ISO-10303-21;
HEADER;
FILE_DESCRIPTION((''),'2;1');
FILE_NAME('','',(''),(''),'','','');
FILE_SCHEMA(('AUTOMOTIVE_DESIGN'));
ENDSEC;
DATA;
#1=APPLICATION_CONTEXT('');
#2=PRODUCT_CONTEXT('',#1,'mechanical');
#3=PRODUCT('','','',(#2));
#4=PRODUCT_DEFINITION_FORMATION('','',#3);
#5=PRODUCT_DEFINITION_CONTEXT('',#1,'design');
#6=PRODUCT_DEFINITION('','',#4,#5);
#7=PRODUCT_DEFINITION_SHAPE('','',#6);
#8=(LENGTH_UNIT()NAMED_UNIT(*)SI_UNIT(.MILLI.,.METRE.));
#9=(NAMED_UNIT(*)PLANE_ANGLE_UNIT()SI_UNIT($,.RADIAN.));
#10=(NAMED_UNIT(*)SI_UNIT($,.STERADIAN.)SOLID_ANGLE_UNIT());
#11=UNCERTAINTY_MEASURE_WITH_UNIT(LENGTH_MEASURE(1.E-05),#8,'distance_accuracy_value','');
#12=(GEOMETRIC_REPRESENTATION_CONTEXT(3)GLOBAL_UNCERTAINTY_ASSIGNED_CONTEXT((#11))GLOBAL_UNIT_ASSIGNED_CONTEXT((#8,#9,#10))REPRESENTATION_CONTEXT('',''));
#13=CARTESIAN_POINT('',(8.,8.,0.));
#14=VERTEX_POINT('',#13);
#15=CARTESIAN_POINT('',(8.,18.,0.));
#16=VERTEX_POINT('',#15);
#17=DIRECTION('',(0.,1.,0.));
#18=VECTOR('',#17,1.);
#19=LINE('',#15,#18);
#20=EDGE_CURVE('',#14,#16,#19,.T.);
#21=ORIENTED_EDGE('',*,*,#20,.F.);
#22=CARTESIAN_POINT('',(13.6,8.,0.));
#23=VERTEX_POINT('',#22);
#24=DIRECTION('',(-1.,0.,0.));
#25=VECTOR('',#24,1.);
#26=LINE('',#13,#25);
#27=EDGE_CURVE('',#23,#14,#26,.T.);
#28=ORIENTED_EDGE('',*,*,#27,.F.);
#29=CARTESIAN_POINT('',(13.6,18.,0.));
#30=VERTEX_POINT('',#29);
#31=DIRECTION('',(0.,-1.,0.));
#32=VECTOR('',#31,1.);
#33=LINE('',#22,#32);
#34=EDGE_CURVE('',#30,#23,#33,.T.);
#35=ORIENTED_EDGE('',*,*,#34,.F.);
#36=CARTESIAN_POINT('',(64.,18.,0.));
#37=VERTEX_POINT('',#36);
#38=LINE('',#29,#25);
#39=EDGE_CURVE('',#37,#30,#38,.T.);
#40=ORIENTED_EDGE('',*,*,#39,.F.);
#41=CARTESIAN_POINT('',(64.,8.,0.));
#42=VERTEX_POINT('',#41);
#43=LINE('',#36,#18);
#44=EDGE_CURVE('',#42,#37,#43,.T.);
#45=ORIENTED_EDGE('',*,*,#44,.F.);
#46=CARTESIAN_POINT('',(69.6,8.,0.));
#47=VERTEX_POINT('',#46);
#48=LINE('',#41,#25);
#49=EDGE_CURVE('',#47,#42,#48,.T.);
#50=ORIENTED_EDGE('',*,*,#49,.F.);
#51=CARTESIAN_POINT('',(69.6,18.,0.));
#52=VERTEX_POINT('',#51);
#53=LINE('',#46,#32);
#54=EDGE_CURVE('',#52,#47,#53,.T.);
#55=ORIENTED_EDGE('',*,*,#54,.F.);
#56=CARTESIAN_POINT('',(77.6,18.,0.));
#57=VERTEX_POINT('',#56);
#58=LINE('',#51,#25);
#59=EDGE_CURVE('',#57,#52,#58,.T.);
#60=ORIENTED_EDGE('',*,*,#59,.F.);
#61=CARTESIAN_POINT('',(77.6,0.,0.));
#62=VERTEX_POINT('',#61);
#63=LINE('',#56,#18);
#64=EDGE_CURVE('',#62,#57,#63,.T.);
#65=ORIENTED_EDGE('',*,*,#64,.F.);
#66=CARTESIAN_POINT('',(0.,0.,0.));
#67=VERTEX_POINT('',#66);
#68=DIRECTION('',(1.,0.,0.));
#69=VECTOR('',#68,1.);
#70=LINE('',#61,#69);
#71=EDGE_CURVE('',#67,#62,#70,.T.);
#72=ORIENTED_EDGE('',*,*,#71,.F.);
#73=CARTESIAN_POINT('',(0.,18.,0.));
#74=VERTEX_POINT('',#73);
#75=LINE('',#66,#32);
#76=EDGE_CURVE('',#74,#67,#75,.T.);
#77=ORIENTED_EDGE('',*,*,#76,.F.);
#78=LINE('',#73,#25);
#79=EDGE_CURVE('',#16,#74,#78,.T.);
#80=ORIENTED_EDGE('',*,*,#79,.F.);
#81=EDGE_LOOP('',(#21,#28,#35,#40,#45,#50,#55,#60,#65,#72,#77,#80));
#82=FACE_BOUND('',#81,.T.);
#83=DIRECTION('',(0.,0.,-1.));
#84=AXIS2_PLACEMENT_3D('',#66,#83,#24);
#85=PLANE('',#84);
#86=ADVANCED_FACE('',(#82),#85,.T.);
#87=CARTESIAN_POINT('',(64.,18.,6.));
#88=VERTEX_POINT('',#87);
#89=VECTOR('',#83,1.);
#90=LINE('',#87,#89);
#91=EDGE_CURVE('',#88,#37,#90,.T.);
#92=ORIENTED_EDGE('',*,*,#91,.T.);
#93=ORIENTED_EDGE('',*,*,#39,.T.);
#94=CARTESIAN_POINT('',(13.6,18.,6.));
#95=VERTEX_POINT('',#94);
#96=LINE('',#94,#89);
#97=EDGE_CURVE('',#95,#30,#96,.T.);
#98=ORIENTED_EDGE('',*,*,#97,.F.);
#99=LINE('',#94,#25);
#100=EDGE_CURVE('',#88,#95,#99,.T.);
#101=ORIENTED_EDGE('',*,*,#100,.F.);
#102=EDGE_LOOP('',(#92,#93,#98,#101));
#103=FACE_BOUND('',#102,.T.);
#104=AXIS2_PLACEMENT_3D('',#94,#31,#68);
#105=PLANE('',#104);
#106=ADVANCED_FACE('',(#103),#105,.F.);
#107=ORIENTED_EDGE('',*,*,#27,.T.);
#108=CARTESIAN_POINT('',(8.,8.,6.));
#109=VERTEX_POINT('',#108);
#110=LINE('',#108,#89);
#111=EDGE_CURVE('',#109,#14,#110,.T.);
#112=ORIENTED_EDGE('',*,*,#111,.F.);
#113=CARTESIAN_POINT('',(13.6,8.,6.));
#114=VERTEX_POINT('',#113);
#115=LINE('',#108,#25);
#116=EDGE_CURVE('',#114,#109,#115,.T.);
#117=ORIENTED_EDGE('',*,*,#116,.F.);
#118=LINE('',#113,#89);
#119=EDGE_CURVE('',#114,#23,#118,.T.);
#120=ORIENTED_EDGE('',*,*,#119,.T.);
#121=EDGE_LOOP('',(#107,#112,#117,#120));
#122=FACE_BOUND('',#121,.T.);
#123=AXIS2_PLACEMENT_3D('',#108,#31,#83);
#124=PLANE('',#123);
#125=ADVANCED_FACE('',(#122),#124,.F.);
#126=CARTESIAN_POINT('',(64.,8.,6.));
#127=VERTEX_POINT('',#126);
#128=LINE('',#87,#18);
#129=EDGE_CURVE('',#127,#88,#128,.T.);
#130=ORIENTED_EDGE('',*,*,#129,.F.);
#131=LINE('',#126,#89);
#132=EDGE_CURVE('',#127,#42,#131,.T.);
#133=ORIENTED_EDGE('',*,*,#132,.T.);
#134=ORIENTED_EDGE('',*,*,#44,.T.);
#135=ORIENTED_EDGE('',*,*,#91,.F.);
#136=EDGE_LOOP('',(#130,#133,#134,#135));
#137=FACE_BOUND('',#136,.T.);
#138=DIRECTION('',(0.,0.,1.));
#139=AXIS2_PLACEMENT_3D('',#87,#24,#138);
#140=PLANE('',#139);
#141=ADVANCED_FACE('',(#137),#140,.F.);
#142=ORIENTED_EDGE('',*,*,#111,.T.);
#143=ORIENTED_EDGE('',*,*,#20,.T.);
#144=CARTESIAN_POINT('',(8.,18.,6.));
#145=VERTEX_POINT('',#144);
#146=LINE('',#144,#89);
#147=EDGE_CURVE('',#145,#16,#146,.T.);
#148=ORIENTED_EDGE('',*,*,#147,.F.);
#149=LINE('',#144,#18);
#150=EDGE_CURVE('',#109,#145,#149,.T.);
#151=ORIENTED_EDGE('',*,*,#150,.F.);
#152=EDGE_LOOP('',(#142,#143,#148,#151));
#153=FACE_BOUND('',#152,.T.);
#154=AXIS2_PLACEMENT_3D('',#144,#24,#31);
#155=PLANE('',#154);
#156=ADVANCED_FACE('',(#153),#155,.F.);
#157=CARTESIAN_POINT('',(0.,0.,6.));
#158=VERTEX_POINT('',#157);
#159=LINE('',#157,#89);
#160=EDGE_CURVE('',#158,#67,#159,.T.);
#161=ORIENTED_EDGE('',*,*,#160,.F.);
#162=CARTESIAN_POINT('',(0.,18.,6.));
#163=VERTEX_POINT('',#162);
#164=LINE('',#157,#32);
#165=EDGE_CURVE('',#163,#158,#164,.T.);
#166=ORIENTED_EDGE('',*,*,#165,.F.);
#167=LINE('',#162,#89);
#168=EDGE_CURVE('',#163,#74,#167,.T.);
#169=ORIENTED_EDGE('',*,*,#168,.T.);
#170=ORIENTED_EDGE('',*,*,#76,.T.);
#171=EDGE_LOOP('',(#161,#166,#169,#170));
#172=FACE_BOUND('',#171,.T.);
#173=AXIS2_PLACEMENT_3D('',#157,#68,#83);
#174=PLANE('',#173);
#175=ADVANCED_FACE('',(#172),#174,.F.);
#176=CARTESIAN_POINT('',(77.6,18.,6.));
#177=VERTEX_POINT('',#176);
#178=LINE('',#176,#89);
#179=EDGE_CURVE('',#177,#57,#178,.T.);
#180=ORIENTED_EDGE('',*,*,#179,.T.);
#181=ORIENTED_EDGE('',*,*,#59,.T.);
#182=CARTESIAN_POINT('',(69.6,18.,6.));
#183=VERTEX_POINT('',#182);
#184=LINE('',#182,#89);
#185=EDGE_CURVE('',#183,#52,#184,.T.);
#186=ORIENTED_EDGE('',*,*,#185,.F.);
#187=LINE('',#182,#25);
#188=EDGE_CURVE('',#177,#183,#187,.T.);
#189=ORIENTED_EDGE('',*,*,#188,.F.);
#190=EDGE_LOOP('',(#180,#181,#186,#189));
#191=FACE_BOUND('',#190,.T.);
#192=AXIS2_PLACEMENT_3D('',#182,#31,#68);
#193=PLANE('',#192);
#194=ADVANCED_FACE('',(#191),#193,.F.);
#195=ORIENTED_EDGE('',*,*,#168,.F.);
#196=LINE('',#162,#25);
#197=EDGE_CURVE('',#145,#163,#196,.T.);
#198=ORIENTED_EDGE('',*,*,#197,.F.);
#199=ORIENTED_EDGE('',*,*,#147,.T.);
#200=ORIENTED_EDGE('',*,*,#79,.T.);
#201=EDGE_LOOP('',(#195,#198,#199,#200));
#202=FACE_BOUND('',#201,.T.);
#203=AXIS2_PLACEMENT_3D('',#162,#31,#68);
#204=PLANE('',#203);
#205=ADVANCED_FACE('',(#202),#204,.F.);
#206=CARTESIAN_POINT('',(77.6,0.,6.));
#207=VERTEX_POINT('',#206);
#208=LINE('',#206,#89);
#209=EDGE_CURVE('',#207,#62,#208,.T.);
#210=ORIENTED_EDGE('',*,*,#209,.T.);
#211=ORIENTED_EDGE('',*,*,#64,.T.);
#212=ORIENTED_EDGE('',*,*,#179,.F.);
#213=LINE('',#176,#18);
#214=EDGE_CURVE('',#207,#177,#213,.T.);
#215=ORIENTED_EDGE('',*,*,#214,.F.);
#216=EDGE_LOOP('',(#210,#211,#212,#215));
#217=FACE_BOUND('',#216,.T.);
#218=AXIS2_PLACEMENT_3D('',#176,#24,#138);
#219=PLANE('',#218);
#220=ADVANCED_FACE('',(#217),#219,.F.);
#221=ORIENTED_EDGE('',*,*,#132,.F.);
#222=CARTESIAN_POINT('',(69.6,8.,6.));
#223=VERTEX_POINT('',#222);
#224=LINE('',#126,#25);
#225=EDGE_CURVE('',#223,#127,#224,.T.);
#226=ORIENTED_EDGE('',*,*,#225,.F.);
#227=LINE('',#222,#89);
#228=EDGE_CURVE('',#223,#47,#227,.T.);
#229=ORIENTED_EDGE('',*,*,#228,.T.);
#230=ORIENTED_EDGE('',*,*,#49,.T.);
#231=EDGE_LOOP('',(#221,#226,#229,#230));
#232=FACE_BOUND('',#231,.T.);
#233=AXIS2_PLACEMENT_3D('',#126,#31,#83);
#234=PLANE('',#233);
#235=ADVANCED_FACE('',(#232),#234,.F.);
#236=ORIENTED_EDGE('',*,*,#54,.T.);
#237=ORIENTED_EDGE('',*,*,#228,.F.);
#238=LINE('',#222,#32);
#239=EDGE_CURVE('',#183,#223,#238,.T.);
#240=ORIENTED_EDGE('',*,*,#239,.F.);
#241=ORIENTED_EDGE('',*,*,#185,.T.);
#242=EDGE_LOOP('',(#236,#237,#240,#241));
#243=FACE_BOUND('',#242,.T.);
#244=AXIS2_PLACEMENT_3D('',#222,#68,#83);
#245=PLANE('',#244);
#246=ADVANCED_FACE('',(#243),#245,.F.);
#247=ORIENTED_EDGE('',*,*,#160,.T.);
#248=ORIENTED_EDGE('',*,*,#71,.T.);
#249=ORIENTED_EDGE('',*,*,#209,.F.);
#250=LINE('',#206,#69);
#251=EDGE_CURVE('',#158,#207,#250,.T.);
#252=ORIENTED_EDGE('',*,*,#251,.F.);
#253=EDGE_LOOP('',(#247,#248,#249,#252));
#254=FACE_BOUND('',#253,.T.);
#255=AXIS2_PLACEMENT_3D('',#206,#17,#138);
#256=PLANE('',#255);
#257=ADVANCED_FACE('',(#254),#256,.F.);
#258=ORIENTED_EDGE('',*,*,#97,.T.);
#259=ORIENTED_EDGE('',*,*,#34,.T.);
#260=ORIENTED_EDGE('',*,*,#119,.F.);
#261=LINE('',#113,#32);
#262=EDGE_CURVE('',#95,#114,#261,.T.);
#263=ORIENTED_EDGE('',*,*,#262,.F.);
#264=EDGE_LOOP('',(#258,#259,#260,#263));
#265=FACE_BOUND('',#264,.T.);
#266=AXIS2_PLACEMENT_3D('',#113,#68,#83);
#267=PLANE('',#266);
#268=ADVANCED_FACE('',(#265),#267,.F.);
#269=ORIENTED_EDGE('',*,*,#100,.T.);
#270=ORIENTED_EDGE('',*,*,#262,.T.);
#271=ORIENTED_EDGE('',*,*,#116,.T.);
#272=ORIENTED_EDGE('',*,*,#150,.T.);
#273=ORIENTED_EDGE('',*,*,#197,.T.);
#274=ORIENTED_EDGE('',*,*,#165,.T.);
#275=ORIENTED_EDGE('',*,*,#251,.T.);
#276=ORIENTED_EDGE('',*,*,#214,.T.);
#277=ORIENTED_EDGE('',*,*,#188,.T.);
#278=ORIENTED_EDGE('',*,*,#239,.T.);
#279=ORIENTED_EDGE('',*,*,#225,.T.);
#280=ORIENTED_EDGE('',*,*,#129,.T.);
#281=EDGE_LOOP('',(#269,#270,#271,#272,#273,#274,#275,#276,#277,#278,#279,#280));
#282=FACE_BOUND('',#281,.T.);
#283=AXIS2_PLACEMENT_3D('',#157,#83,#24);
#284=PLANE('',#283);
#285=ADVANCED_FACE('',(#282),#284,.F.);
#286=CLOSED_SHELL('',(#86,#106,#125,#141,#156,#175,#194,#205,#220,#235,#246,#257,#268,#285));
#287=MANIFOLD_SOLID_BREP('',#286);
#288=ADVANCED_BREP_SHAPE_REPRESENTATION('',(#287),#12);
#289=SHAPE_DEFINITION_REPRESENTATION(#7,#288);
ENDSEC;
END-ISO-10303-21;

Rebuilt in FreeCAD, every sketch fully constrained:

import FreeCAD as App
import Part
import Sketcher
from FreeCAD import Vector
Q = App.Units.Quantity


def add_polygon(sketch, points):
    """Adds a closed chain of lines whose ends are joined by coincident constraints."""
    first, n = sketch.GeometryCount, len(points)
    for a, b in zip(points, points[1:] + points[:1]):
        sketch.addGeometry(Part.LineSegment(App.Vector(*a, 0), App.Vector(*b, 0)), False)
    for i in range(n):
        sketch.addConstraint(Sketcher.Constraint("Coincident", first + i, 2, first + (i + 1) % n, 1))

doc = App.newDocument("Part")
body = doc.addObject("PartDesign::Body", "Body")

sketch1 = body.newObject("Sketcher::SketchObject", "Sketch")
sketch1.AttachmentSupport = (doc.getObject("XY_Plane"), [""])
sketch1.MapMode = "FlatFace"
add_polygon(sketch1, [(0, 18), (0, 0), (77.6, 0), (77.6, 18), (69.6, 18), (69.6, 8), (64, 8), (64, 18), (13.6, 18), (13.6, 8), (8, 8), (8, 18)])
sketch1.addConstraint([
    Sketcher.Constraint("Vertical", 0),
    Sketcher.Constraint("Horizontal", 1),
    Sketcher.Constraint("Vertical", 2),
    Sketcher.Constraint("Horizontal", 3),
    Sketcher.Constraint("Vertical", 4),
    Sketcher.Constraint("Horizontal", 5),
    Sketcher.Constraint("Vertical", 6),
    Sketcher.Constraint("Horizontal", 7),
    Sketcher.Constraint("Vertical", 8),
    Sketcher.Constraint("Horizontal", 9),
    Sketcher.Constraint("Vertical", 10),
    Sketcher.Constraint("Horizontal", 11),
    Sketcher.Constraint("Coincident", 0, 2, -1, 1),
    Sketcher.Constraint("Horizontal", 3, 2, 6, 2),
    Sketcher.Constraint("Horizontal", 5, 2, 8, 2),
    Sketcher.Constraint("Horizontal", 7, 2, 10, 2),
    Sketcher.Constraint("Equal", 5, 9),
    Sketcher.Constraint("Equal", 3, 11),
    Sketcher.Constraint("DistanceX", 3, 2, 3, 1, Q("8 mm")),
    Sketcher.Constraint("DistanceY", 0, 2, 0, 1, Q("18 mm")),
    Sketcher.Constraint("DistanceY", 4, 2, 4, 1, Q("10 mm")),
    Sketcher.Constraint("DistanceX", 1, 1, 1, 2, Q("77.6 mm")),
    Sketcher.Constraint("DistanceX", 5, 2, 5, 1, Q("5.6 mm")),
])
pad1 = body.newObject("PartDesign::Pad", "Pad")
pad1.Profile = sketch1
pad1.Length = 6

doc.recompute()
